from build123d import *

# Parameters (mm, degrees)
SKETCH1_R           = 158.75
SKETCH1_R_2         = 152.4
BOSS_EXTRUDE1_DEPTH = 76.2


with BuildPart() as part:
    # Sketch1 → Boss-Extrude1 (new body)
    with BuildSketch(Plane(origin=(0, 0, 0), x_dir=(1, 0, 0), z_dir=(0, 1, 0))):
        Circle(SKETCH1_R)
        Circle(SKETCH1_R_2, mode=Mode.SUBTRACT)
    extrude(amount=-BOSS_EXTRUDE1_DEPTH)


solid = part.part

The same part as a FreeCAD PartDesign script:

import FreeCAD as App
import Part
import Sketcher
Q = App.Units.Quantity

doc = App.newDocument("Part")
params = doc.addObject("Spreadsheet::Sheet", "Params")
for row, (alias, value) in enumerate([
    ("sketch1_diameter", "12 in"),
    ("sketch1_diameter2", "12.5 in"),
    ("pad1_length", "3 in"),
], start=1):
    params.set(f"A{row}", alias)
    params.set(f"B{row}", "=" + value)
    params.setAlias(f"B{row}", alias)

body = doc.addObject("PartDesign::Body", "Body")

# Sketch on XZ plane
sketch1 = doc.addObject("Sketcher::SketchObject", "Sketch")
body.addObject(sketch1)
sketch1.AttachmentSupport = (doc.XZ_Plane, [""])
sketch1.MapMode = "FlatFace"
sketch1.addGeometry([
    Part.Circle(App.Vector(0, 0, 0), App.Vector(0, 0, 1), 158.75),
    Part.Circle(App.Vector(0, 0, 0), App.Vector(0, 0, 1), 152.4),
], False)
sketch1.addConstraint([
    Sketcher.Constraint("Coincident", 0, 3, -1, 1),
    Sketcher.Constraint("Coincident", 1, 3, -1, 1),
    Sketcher.Constraint("Diameter", 1, Q("12 in")),
    Sketcher.Constraint("Diameter", 0, Q("12.5 in")),
])
sketch1.setExpression("Constraints[2]", "Params.sketch1_diameter")
sketch1.setExpression("Constraints[3]", "Params.sketch1_diameter2")
pad1 = doc.addObject("PartDesign::Pad", "Pad")
body.addObject(pad1)
pad1.Profile = sketch1
pad1.setExpression("Length", "Params.pad1_length")

doc.recompute()
